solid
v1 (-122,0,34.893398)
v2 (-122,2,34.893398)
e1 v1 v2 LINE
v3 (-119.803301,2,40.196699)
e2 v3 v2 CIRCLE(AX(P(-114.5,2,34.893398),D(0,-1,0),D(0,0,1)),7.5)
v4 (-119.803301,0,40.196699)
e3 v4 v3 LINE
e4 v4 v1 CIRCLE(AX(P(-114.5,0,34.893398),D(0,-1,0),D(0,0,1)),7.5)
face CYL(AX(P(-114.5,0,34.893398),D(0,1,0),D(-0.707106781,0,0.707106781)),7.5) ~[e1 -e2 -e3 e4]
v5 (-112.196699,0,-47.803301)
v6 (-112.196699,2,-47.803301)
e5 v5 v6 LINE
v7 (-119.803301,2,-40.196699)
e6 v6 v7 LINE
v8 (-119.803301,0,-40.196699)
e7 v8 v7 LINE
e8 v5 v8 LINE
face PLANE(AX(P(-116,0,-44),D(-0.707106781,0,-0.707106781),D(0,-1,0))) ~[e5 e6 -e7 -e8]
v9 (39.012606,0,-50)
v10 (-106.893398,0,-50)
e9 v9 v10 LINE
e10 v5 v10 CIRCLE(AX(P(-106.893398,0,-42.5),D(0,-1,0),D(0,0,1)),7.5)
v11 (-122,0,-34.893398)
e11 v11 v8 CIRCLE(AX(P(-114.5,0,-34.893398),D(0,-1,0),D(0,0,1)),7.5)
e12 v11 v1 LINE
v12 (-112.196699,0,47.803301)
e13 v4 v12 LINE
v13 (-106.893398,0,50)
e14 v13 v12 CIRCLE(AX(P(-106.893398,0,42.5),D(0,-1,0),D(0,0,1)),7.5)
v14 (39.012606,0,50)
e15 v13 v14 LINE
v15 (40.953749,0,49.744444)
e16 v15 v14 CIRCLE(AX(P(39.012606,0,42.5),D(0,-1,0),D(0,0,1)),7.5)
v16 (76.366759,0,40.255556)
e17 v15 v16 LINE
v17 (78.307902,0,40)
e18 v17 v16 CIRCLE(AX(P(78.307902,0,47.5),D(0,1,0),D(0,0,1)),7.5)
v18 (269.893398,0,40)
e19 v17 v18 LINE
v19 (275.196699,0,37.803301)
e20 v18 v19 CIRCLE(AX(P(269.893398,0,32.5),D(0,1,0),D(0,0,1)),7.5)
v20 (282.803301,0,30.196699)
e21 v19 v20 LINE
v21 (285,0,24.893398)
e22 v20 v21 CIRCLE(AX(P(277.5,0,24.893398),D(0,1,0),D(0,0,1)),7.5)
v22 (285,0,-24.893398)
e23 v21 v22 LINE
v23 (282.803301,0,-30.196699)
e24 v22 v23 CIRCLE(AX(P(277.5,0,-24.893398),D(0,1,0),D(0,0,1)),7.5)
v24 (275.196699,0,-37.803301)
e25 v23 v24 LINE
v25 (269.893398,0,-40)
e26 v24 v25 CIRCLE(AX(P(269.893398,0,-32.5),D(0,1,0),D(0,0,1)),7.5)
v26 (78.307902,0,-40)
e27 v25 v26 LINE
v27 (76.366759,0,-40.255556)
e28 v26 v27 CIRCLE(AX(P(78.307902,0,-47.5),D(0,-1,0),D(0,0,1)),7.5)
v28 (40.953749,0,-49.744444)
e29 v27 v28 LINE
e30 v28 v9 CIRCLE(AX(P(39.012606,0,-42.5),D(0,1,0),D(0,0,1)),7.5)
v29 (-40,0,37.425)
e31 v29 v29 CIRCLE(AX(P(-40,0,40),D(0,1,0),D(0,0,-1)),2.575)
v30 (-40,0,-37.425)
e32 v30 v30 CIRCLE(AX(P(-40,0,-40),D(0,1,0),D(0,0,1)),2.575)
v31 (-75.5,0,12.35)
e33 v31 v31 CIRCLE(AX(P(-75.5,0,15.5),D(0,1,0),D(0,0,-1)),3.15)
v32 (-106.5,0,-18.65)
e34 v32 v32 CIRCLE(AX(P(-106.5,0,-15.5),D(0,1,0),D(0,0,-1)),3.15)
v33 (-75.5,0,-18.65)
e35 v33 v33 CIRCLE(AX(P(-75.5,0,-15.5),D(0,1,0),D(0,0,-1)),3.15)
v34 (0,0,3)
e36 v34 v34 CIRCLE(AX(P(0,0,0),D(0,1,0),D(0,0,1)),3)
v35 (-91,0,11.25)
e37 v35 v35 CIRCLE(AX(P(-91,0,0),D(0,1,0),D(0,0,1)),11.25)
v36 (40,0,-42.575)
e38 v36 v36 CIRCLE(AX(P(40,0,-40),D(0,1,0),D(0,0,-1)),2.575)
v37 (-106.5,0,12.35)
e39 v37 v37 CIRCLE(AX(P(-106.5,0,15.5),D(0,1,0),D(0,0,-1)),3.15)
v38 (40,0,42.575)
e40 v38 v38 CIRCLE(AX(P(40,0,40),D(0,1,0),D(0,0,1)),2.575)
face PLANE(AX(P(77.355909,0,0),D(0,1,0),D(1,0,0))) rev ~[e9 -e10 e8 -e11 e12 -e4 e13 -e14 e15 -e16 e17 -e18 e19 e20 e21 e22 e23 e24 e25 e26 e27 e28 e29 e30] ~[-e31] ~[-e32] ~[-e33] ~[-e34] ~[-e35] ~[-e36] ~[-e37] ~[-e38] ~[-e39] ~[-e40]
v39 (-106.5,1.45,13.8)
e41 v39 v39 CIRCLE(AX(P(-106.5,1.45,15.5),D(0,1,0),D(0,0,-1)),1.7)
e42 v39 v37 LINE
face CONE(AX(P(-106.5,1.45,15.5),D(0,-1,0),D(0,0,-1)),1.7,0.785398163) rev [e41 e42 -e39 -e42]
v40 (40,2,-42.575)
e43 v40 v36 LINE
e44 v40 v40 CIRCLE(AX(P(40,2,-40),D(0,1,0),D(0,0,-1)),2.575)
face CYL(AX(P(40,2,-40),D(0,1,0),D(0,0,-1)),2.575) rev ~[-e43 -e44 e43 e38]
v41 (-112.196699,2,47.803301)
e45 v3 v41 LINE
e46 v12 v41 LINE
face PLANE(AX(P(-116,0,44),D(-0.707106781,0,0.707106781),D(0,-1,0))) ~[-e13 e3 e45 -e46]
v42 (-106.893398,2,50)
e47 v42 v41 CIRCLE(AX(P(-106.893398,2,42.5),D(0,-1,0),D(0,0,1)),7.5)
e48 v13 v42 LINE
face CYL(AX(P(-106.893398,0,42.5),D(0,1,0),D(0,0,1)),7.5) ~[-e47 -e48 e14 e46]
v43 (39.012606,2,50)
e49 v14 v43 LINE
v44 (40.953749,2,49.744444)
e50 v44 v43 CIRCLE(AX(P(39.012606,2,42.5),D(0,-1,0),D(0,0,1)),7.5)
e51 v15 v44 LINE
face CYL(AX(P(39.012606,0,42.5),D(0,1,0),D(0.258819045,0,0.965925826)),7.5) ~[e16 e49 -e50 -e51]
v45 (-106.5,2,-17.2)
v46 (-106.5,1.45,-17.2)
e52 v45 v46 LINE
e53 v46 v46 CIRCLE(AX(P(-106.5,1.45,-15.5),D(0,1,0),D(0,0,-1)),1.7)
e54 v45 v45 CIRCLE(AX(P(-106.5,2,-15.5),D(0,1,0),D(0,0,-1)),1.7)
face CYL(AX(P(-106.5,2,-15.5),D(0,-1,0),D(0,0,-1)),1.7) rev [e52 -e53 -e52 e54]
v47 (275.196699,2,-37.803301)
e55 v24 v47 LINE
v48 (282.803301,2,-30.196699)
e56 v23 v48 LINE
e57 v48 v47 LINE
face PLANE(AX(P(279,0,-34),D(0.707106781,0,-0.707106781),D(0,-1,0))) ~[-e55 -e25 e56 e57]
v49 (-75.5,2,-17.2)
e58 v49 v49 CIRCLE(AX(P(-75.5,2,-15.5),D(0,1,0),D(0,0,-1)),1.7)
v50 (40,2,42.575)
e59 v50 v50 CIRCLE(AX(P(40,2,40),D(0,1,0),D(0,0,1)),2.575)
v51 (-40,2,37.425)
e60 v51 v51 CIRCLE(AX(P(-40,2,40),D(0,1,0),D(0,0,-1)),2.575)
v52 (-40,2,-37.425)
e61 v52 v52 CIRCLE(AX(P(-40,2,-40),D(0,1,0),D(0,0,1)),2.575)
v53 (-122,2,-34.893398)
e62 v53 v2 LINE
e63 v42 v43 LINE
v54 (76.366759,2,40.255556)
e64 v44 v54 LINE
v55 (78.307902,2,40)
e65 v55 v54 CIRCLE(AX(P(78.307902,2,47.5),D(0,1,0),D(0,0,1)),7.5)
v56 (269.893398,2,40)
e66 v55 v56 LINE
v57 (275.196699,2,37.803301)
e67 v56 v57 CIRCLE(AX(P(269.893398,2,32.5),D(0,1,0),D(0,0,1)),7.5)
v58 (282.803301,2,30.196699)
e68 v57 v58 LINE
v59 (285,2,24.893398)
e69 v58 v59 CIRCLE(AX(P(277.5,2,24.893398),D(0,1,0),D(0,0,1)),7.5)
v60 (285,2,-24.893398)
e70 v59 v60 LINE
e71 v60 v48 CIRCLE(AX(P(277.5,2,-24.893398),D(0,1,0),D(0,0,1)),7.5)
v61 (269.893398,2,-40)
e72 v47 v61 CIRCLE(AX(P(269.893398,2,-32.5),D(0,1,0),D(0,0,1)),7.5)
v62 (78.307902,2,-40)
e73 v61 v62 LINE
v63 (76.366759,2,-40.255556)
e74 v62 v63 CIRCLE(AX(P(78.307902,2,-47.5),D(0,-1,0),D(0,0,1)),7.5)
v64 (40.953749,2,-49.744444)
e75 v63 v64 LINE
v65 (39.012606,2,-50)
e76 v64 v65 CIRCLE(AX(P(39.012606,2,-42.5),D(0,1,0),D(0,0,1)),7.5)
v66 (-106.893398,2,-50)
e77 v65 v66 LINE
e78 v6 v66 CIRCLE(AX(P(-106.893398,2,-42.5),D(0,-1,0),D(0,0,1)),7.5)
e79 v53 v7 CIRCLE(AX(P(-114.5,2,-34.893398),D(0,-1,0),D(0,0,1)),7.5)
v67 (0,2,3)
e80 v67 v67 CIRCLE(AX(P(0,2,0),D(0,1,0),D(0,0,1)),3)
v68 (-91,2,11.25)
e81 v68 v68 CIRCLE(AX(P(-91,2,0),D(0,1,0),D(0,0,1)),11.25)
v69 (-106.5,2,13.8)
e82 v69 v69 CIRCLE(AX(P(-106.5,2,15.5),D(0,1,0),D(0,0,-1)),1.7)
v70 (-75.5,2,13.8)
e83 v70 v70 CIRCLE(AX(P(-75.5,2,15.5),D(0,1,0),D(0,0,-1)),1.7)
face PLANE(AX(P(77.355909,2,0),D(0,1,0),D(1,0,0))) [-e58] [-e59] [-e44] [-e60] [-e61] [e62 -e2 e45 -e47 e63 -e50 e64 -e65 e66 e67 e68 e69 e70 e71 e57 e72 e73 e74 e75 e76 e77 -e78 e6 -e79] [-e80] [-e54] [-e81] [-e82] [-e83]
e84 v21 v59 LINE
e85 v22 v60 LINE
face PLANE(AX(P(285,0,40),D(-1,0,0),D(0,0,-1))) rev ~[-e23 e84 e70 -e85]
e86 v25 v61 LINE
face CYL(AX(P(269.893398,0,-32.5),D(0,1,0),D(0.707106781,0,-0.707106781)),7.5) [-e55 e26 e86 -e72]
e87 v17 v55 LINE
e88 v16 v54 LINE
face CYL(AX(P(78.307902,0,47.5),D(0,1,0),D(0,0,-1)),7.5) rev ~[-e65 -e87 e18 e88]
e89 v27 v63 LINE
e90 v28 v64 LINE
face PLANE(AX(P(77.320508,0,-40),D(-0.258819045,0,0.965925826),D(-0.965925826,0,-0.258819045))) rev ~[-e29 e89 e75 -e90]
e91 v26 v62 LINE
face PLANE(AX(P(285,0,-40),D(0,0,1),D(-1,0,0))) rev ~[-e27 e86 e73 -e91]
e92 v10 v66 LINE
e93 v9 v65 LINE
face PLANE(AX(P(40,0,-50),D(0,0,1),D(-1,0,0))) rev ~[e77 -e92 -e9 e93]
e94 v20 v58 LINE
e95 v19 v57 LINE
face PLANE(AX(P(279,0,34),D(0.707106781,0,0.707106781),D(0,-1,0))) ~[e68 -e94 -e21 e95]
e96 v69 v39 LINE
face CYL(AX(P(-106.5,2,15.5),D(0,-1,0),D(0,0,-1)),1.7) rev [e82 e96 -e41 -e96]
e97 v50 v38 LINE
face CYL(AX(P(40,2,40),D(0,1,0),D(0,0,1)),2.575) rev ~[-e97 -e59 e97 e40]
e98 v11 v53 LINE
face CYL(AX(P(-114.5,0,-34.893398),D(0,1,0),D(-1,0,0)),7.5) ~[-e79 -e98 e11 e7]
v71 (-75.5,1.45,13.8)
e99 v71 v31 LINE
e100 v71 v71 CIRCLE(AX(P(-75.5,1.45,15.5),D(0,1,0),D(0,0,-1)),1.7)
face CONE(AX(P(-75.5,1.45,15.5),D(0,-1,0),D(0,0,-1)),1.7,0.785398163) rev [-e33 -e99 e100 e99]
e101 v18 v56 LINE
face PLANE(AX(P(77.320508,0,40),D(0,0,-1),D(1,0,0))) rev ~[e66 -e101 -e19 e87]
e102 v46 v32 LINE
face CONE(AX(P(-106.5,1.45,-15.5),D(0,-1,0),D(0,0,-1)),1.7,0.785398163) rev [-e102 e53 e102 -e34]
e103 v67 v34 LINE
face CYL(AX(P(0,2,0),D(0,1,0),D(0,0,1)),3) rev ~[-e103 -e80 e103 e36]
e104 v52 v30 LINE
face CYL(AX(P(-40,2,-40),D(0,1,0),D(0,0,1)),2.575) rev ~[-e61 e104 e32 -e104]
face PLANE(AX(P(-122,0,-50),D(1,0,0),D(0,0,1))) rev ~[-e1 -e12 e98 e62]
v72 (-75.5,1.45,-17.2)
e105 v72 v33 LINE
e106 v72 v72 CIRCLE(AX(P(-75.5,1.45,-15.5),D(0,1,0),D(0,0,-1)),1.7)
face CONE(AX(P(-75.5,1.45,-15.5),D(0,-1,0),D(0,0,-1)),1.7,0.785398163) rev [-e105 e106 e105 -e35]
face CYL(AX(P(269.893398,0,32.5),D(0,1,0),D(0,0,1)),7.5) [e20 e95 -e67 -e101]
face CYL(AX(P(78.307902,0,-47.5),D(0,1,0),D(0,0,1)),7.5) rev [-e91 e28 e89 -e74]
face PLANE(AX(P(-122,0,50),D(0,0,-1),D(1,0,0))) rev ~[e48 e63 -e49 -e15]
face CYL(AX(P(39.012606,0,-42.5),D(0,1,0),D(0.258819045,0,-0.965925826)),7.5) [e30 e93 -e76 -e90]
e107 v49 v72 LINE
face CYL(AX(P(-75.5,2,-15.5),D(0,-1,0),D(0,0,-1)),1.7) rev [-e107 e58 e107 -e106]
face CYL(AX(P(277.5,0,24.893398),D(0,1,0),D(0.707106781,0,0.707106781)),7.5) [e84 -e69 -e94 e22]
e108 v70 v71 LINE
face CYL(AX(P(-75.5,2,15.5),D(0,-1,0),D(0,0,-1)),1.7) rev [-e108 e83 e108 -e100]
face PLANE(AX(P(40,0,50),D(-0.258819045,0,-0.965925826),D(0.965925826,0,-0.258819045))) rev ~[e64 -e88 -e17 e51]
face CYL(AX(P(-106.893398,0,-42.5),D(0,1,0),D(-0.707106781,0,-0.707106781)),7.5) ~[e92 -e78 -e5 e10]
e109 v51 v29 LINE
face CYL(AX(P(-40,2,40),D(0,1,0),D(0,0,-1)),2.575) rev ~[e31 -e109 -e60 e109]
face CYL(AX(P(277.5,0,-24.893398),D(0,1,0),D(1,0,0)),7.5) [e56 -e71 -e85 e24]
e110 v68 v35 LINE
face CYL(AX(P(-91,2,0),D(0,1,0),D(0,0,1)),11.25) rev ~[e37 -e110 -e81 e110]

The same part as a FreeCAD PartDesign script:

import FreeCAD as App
import Part
import Sketcher

V = App.Vector
Q = App.Units.Quantity


def edges_at(feature, points):
    """Names of the edges that pass closest to the given points."""
    edges = feature.Shape.Edges
    near = lambda p: min(range(len(edges)), key=lambda i: edges[i].distToShape(Part.Vertex(*p))[0])
    return sorted({f"Edge{near(p) + 1}" for p in points})


def add_polygon(sketch, points):
    """Adds a closed chain of lines whose ends are joined by coincident constraints."""
    first, n = sketch.GeometryCount, len(points)
    for a, b in zip(points, points[1:] + points[:1]):
        sketch.addGeometry(Part.LineSegment(App.Vector(*a, 0), App.Vector(*b, 0)), False)
    for i in range(n):
        sketch.addConstraint(Sketcher.Constraint("Coincident", first + i, 2, first + (i + 1) % n, 1))

doc = App.newDocument("Part")
body = doc.addObject("PartDesign::Body", "Body")

# Sketch on XZ plane
sketch1 = body.newObject("Sketcher::SketchObject", "Sketch")
sketch1.AttachmentSupport = (doc.getObject("XZ_Plane"), [""])
sketch1.MapMode = "FlatFace"
add_polygon(sketch1, [(40, 50), (77, 40), (285, 40), (285, -40), (77, -40), (40, -50), (-122, -50), (-122, 50)])  # lines 0-7
sketch1.addConstraint(Sketcher.Constraint("Horizontal", 1))
sketch1.addConstraint(Sketcher.Constraint("Vertical", 2))
sketch1.addConstraint(Sketcher.Constraint("Horizontal", 3))
sketch1.addConstraint(Sketcher.Constraint("Horizontal", 5))
sketch1.addConstraint(Sketcher.Constraint("Vertical", 6))
sketch1.addConstraint(Sketcher.Constraint("Horizontal", 7))
sketch1.addConstraint(Sketcher.Constraint("Symmetric", 0, 2, 3, 2, -1))
sketch1.addConstraint(Sketcher.Constraint("Symmetric", 4, 2, 7, 2, -1))
sketch1.addConstraint(Sketcher.Constraint("DistanceX", 5, 2, 5, 1, 162.0))
sketch1.addConstraint(Sketcher.Constraint("DistanceY", 2, 2, 2, 1, 80.0))
sketch1.addConstraint(Sketcher.Constraint("DistanceY", 6, 1, 6, 2, 100.0))
sketch1.addConstraint(Sketcher.Constraint("Angle", 0, Q("-15 deg")))
sketch1.addConstraint(Sketcher.Constraint("DistanceX", -1, 1, 1, 2, 285.0))
sketch1.addConstraint(Sketcher.Constraint("DistanceX", -1, 1, 4, 2, 40.0))
pad1 = body.newObject("PartDesign::Pad", "Pad")
pad1.Profile = sketch1
pad1.Length = 2
pad1.Reversed = True
doc.recompute()

chamfer = body.newObject("PartDesign::Chamfer", "Chamfer")
chamfer.Base = (pad1, edges_at(pad1, [
    (-122, 1, 50),
    (-122, 1, -50),
    (285, 1, -40),
    (285, 1, 40),
]))
chamfer.Size = 12
doc.recompute()

fillet = body.newObject("PartDesign::Fillet", "Fillet")
fillet.Base = (chamfer, edges_at(chamfer, [
    (40, 1, -50),
    (77.321, 1, -40),
    (77.321, 1, 40),
    (40, 1, 50),
    (-110, 1, 50),
    (-122, 1, -38),
    (-122, 1, 38),
    (-110, 1, -50),
    (273, 1, -40),
    (285, 1, 28),
    (285, 1, -28),
    (273, 1, 40),
]))
fillet.Radius = 7.5

# Sketch on XZ plane
sketch2 = body.newObject("Sketcher::SketchObject", "Sketch001")
sketch2.AttachmentSupport = (doc.getObject("XZ_Plane"), [""])
sketch2.MapMode = "FlatFace"
sketch2.AttachmentOffset = App.Placement(V(0, 0, -2), App.Rotation())
sketch2.addGeometry(Part.Circle(V(-40, -40, 0), V(0, 0, 1), 2.6), False)
sketch2.addGeometry(Part.Circle(V(40, -40, 0), V(0, 0, 1), 2.6), False)
sketch2.addGeometry(Part.Circle(V(40, 40, 0), V(0, 0, 1), 2.6), False)
sketch2.addGeometry(Part.Circle(V(-40, 40, 0), V(0, 0, 1), 2.6), False)
sketch2.addGeometry(Part.Circle(V(-91, 0, 0), V(0, 0, 1), 11.2), False)
sketch2.addGeometry(Part.Circle(V(0, 0, 0), V(0, 0, 1), 3), False)
sketch2.addConstraint(Sketcher.Constraint("Coincident", 5, 3, -1, 1))
sketch2.addConstraint(Sketcher.Constraint("Equal", 0, 1))
sketch2.addConstraint(Sketcher.Constraint("Equal", 1, 2))
sketch2.addConstraint(Sketcher.Constraint("Equal", 2, 3))
sketch2.addConstraint(Sketcher.Constraint("Symmetric", 0, 3, 2, 3, -1, 1))
sketch2.addConstraint(Sketcher.Constraint("Symmetric", 1, 3, 3, 3, -1, 1))
sketch2.addConstraint(Sketcher.Constraint("Symmetric", 0, 3, 1, 3, -2))
sketch2.addConstraint(Sketcher.Constraint("PointOnObject", 4, 3, -1))
sketch2.addConstraint(Sketcher.Constraint("Diameter", 5, 6.0))
sketch2.addConstraint(Sketcher.Constraint("Diameter", 4, 22.5))
sketch2.addConstraint(Sketcher.Constraint("Diameter", 0, 5.15))
sketch2.addConstraint(Sketcher.Constraint("DistanceX", 0, 3, -1, 1, 40.0))
sketch2.addConstraint(Sketcher.Constraint("DistanceY", 0, 3, -1, 1, 40.0))
sketch2.addConstraint(Sketcher.Constraint("DistanceX", 4, 3, -1, 1, 91.0))
pocket1 = body.newObject("PartDesign::Pocket", "Pocket")
pocket1.Profile = sketch2
pocket1.Type = "ThroughAll"
pocket1.Reversed = True

# Sketch on YZ plane
sketch3 = body.newObject("Sketcher::SketchObject", "Sketch002")
sketch3.AttachmentSupport = (doc.getObject("YZ_Plane"), [""])
sketch3.MapMode = "FlatFace"
sketch3.AttachmentOffset = App.Placement(V(0, 0, -106.5), App.Rotation())
add_polygon(sketch3, [(2, -15.5), (0, -15.5), (0, -18.6), (1.4, -17.2), (2, -17.2)])  # lines 0-4
sketch3.addGeometry(Part.LineSegment(V(0, -15.5, 0), V(2, -15.5, 0)), True)  # axis
sketch3.addConstraint(Sketcher.Constraint("Horizontal", 0))
sketch3.addConstraint(Sketcher.Constraint("Vertical", 1))
sketch3.addConstraint(Sketcher.Constraint("Horizontal", 3))
sketch3.addConstraint(Sketcher.Constraint("Vertical", 4))
sketch3.addConstraint(Sketcher.Constraint("Horizontal", 5))
sketch3.addConstraint(Sketcher.Constraint("Coincident", 5, 1, 0, 2))
sketch3.addConstraint(Sketcher.Constraint("PointOnObject", 0, 2, -2))
sketch3.addConstraint(Sketcher.Constraint("Vertical", 3, 2, 5, 2))
sketch3.addConstraint(Sketcher.Constraint("DistanceX", 0, 2, 0, 1, 2.0))
sketch3.addConstraint(Sketcher.Constraint("Angle", 2, Q("45 deg")))
sketch3.addConstraint(Sketcher.Constraint("DistanceY", 4, 1, 4, 2, 1.7))
sketch3.addConstraint(Sketcher.Constraint("DistanceX", 3, 1, 3, 2, 0.55))
sketch3.addConstraint(Sketcher.Constraint("DistanceY", 0, 2, -1, 1, 15.5))
groove = body.newObject("PartDesign::Groove", "Groove")
groove.Profile = sketch3
groove.ReferenceAxis = (sketch3, ["Axis0"])
groove.Angle = 360
doc.recompute()

linearpattern = body.newObject("PartDesign::LinearPattern", "LinearPattern")
linearpattern.Originals = [groove]
linearpattern.Direction = (doc.getObject("Z_Axis"), [""])
linearpattern.Mode = "offset"
linearpattern.Offset = 31
linearpattern.Occurrences = 2
body.Tip = linearpattern
doc.recompute()

datumline = body.newObject("PartDesign::Line", "DatumLine")
datumline.Placement = App.Placement(V(0, 0, 0), App.Rotation(V(0, 0, 1), V(0.707106781, 0, 0.707106781)))
linearpattern2 = body.newObject("PartDesign::LinearPattern", "LinearPattern001")
linearpattern2.Originals = [groove]
linearpattern2.Direction = (datumline, [""])
linearpattern2.Mode = "offset"
linearpattern2.Offset = 43.84062
linearpattern2.Occurrences = 2
body.Tip = linearpattern2
doc.recompute()

linearpattern3 = body.newObject("PartDesign::LinearPattern", "LinearPattern002")
linearpattern3.Originals = [groove]
linearpattern3.Direction = (doc.getObject("X_Axis"), [""])
linearpattern3.Mode = "offset"
linearpattern3.Offset = 31
linearpattern3.Occurrences = 2
body.Tip = linearpattern3

doc.recompute()
